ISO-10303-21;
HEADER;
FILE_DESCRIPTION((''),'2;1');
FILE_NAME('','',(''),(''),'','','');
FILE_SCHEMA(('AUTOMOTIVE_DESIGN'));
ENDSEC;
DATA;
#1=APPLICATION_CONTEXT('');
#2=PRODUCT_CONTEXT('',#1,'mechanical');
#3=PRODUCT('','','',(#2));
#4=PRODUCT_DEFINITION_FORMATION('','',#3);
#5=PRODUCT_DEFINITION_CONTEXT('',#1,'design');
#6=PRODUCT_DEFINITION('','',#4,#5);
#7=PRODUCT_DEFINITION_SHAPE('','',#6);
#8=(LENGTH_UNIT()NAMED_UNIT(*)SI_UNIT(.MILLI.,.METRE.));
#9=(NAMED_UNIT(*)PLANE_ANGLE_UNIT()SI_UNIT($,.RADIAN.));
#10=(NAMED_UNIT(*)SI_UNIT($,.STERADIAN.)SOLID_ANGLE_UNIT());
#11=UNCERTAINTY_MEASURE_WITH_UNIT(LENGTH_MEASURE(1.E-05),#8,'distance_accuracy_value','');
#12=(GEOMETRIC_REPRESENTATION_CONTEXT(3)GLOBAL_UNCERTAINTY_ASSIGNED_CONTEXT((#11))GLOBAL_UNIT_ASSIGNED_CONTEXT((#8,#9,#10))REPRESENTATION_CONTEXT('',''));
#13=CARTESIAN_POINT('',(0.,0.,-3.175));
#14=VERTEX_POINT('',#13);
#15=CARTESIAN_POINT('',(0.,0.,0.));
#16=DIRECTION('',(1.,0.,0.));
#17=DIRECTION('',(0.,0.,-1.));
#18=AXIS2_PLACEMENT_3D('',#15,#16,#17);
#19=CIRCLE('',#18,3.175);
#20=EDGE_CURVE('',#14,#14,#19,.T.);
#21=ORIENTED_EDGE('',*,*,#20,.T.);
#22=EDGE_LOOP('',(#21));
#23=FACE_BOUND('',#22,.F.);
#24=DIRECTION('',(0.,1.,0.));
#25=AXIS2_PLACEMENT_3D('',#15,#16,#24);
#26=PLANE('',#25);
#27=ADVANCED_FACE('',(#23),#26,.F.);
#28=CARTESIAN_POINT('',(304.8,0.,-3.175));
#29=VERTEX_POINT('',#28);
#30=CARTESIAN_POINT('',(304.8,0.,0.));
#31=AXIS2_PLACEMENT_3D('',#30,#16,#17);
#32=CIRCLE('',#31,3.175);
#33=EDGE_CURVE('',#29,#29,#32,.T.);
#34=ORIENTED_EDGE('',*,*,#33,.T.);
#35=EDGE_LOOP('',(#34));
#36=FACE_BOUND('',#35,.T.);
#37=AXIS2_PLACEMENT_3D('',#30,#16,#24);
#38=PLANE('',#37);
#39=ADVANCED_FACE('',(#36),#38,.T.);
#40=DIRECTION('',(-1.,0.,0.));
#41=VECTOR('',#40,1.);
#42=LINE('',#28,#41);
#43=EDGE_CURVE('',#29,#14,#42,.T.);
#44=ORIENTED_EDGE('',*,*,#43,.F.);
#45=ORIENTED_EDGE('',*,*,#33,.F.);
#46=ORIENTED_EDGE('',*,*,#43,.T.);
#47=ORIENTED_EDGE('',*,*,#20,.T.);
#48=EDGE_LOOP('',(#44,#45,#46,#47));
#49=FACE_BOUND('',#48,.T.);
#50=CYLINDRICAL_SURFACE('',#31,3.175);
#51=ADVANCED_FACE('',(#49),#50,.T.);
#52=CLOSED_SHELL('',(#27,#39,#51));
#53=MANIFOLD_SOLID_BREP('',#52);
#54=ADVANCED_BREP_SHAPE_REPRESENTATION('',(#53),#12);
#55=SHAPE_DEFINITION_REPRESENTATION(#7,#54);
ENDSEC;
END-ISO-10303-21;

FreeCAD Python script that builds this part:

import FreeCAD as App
import Part
import Sketcher
Q = App.Units.Quantity

doc = App.newDocument("Part")
body = doc.addObject("PartDesign::Body", "Body")

# Sketch on YZ plane
sketch1 = body.newObject("Sketcher::SketchObject", "Sketch")
sketch1.AttachmentSupport = (doc.getObject("YZ_Plane"), [""])
sketch1.MapMode = "FlatFace"
sketch1.addGeometry(Part.Circle(App.Vector(0, 0, 0), App.Vector(0, 0, 1), 6), False)
sketch1.addConstraint(Sketcher.Constraint("Coincident", 0, 3, -1, 1))
sketch1.addConstraint(Sketcher.Constraint("Diameter", 0, Q("0.5 in")))
pad1 = body.newObject("PartDesign::Pad", "Pad")
pad1.Profile = sketch1
pad1.Length = Q("12 in")

# Sketch on YZ plane
sketch2 = body.newObject("Sketcher::SketchObject", "Sketch001")
sketch2.AttachmentSupport = (doc.getObject("YZ_Plane"), [""])
sketch2.MapMode = "FlatFace"
sketch2.AttachmentOffset = App.Placement(App.Vector(0, 0, 12 * 25.4), App.Rotation())
sketch2.addGeometry(Part.Circle(App.Vector(0, 0, 0), App.Vector(0, 0, 1), 6.3), False)
sketch2.addGeometry(Part.Circle(App.Vector(0, 0, 0), App.Vector(0, 0, 1), 4.8), False)
sketch2.addConstraint(Sketcher.Constraint("Coincident", 0, 3, -1, 1))
sketch2.addConstraint(Sketcher.Constraint("Coincident", 1, 3, -1, 1))
sketch2.addConstraint(Sketcher.Constraint("Diameter", 1, Q("0.375 in")))
sketch2.addConstraint(Sketcher.Constraint("Diameter", 0, Q("0.5 in")))
pocket1 = body.newObject("PartDesign::Pocket", "Pocket")
pocket1.Profile = sketch2
pocket1.Length = Q("15.1687992 in")

# Sketch on YZ plane
sketch3 = body.newObject("Sketcher::SketchObject", "Sketch002")
sketch3.AttachmentSupport = (doc.getObject("YZ_Plane"), [""])
sketch3.MapMode = "FlatFace"
sketch3.AttachmentOffset = App.Placement(App.Vector(0, 0, 12 * 25.4), App.Rotation())
sketch3.addGeometry(Part.Circle(App.Vector(0, 0, 0), App.Vector(0, 0, 1), 4.8), False)
sketch3.addGeometry(Part.Circle(App.Vector(0, 0, 0), App.Vector(0, 0, 1), 3.2), False)
sketch3.addConstraint(Sketcher.Constraint("Coincident", 0, 3, -1, 1))
sketch3.addConstraint(Sketcher.Constraint("Coincident", 1, 3, -1, 1))
sketch3.addConstraint(Sketcher.Constraint("Diameter", 1, Q("0.25 in")))
sketch3.addConstraint(Sketcher.Constraint("Diameter", 0, Q("0.375 in")))
pocket2 = body.newObject("PartDesign::Pocket", "Pocket001")
pocket2.Profile = sketch3
pocket2.Length = Q("32.2312992 in")

doc.recompute()
